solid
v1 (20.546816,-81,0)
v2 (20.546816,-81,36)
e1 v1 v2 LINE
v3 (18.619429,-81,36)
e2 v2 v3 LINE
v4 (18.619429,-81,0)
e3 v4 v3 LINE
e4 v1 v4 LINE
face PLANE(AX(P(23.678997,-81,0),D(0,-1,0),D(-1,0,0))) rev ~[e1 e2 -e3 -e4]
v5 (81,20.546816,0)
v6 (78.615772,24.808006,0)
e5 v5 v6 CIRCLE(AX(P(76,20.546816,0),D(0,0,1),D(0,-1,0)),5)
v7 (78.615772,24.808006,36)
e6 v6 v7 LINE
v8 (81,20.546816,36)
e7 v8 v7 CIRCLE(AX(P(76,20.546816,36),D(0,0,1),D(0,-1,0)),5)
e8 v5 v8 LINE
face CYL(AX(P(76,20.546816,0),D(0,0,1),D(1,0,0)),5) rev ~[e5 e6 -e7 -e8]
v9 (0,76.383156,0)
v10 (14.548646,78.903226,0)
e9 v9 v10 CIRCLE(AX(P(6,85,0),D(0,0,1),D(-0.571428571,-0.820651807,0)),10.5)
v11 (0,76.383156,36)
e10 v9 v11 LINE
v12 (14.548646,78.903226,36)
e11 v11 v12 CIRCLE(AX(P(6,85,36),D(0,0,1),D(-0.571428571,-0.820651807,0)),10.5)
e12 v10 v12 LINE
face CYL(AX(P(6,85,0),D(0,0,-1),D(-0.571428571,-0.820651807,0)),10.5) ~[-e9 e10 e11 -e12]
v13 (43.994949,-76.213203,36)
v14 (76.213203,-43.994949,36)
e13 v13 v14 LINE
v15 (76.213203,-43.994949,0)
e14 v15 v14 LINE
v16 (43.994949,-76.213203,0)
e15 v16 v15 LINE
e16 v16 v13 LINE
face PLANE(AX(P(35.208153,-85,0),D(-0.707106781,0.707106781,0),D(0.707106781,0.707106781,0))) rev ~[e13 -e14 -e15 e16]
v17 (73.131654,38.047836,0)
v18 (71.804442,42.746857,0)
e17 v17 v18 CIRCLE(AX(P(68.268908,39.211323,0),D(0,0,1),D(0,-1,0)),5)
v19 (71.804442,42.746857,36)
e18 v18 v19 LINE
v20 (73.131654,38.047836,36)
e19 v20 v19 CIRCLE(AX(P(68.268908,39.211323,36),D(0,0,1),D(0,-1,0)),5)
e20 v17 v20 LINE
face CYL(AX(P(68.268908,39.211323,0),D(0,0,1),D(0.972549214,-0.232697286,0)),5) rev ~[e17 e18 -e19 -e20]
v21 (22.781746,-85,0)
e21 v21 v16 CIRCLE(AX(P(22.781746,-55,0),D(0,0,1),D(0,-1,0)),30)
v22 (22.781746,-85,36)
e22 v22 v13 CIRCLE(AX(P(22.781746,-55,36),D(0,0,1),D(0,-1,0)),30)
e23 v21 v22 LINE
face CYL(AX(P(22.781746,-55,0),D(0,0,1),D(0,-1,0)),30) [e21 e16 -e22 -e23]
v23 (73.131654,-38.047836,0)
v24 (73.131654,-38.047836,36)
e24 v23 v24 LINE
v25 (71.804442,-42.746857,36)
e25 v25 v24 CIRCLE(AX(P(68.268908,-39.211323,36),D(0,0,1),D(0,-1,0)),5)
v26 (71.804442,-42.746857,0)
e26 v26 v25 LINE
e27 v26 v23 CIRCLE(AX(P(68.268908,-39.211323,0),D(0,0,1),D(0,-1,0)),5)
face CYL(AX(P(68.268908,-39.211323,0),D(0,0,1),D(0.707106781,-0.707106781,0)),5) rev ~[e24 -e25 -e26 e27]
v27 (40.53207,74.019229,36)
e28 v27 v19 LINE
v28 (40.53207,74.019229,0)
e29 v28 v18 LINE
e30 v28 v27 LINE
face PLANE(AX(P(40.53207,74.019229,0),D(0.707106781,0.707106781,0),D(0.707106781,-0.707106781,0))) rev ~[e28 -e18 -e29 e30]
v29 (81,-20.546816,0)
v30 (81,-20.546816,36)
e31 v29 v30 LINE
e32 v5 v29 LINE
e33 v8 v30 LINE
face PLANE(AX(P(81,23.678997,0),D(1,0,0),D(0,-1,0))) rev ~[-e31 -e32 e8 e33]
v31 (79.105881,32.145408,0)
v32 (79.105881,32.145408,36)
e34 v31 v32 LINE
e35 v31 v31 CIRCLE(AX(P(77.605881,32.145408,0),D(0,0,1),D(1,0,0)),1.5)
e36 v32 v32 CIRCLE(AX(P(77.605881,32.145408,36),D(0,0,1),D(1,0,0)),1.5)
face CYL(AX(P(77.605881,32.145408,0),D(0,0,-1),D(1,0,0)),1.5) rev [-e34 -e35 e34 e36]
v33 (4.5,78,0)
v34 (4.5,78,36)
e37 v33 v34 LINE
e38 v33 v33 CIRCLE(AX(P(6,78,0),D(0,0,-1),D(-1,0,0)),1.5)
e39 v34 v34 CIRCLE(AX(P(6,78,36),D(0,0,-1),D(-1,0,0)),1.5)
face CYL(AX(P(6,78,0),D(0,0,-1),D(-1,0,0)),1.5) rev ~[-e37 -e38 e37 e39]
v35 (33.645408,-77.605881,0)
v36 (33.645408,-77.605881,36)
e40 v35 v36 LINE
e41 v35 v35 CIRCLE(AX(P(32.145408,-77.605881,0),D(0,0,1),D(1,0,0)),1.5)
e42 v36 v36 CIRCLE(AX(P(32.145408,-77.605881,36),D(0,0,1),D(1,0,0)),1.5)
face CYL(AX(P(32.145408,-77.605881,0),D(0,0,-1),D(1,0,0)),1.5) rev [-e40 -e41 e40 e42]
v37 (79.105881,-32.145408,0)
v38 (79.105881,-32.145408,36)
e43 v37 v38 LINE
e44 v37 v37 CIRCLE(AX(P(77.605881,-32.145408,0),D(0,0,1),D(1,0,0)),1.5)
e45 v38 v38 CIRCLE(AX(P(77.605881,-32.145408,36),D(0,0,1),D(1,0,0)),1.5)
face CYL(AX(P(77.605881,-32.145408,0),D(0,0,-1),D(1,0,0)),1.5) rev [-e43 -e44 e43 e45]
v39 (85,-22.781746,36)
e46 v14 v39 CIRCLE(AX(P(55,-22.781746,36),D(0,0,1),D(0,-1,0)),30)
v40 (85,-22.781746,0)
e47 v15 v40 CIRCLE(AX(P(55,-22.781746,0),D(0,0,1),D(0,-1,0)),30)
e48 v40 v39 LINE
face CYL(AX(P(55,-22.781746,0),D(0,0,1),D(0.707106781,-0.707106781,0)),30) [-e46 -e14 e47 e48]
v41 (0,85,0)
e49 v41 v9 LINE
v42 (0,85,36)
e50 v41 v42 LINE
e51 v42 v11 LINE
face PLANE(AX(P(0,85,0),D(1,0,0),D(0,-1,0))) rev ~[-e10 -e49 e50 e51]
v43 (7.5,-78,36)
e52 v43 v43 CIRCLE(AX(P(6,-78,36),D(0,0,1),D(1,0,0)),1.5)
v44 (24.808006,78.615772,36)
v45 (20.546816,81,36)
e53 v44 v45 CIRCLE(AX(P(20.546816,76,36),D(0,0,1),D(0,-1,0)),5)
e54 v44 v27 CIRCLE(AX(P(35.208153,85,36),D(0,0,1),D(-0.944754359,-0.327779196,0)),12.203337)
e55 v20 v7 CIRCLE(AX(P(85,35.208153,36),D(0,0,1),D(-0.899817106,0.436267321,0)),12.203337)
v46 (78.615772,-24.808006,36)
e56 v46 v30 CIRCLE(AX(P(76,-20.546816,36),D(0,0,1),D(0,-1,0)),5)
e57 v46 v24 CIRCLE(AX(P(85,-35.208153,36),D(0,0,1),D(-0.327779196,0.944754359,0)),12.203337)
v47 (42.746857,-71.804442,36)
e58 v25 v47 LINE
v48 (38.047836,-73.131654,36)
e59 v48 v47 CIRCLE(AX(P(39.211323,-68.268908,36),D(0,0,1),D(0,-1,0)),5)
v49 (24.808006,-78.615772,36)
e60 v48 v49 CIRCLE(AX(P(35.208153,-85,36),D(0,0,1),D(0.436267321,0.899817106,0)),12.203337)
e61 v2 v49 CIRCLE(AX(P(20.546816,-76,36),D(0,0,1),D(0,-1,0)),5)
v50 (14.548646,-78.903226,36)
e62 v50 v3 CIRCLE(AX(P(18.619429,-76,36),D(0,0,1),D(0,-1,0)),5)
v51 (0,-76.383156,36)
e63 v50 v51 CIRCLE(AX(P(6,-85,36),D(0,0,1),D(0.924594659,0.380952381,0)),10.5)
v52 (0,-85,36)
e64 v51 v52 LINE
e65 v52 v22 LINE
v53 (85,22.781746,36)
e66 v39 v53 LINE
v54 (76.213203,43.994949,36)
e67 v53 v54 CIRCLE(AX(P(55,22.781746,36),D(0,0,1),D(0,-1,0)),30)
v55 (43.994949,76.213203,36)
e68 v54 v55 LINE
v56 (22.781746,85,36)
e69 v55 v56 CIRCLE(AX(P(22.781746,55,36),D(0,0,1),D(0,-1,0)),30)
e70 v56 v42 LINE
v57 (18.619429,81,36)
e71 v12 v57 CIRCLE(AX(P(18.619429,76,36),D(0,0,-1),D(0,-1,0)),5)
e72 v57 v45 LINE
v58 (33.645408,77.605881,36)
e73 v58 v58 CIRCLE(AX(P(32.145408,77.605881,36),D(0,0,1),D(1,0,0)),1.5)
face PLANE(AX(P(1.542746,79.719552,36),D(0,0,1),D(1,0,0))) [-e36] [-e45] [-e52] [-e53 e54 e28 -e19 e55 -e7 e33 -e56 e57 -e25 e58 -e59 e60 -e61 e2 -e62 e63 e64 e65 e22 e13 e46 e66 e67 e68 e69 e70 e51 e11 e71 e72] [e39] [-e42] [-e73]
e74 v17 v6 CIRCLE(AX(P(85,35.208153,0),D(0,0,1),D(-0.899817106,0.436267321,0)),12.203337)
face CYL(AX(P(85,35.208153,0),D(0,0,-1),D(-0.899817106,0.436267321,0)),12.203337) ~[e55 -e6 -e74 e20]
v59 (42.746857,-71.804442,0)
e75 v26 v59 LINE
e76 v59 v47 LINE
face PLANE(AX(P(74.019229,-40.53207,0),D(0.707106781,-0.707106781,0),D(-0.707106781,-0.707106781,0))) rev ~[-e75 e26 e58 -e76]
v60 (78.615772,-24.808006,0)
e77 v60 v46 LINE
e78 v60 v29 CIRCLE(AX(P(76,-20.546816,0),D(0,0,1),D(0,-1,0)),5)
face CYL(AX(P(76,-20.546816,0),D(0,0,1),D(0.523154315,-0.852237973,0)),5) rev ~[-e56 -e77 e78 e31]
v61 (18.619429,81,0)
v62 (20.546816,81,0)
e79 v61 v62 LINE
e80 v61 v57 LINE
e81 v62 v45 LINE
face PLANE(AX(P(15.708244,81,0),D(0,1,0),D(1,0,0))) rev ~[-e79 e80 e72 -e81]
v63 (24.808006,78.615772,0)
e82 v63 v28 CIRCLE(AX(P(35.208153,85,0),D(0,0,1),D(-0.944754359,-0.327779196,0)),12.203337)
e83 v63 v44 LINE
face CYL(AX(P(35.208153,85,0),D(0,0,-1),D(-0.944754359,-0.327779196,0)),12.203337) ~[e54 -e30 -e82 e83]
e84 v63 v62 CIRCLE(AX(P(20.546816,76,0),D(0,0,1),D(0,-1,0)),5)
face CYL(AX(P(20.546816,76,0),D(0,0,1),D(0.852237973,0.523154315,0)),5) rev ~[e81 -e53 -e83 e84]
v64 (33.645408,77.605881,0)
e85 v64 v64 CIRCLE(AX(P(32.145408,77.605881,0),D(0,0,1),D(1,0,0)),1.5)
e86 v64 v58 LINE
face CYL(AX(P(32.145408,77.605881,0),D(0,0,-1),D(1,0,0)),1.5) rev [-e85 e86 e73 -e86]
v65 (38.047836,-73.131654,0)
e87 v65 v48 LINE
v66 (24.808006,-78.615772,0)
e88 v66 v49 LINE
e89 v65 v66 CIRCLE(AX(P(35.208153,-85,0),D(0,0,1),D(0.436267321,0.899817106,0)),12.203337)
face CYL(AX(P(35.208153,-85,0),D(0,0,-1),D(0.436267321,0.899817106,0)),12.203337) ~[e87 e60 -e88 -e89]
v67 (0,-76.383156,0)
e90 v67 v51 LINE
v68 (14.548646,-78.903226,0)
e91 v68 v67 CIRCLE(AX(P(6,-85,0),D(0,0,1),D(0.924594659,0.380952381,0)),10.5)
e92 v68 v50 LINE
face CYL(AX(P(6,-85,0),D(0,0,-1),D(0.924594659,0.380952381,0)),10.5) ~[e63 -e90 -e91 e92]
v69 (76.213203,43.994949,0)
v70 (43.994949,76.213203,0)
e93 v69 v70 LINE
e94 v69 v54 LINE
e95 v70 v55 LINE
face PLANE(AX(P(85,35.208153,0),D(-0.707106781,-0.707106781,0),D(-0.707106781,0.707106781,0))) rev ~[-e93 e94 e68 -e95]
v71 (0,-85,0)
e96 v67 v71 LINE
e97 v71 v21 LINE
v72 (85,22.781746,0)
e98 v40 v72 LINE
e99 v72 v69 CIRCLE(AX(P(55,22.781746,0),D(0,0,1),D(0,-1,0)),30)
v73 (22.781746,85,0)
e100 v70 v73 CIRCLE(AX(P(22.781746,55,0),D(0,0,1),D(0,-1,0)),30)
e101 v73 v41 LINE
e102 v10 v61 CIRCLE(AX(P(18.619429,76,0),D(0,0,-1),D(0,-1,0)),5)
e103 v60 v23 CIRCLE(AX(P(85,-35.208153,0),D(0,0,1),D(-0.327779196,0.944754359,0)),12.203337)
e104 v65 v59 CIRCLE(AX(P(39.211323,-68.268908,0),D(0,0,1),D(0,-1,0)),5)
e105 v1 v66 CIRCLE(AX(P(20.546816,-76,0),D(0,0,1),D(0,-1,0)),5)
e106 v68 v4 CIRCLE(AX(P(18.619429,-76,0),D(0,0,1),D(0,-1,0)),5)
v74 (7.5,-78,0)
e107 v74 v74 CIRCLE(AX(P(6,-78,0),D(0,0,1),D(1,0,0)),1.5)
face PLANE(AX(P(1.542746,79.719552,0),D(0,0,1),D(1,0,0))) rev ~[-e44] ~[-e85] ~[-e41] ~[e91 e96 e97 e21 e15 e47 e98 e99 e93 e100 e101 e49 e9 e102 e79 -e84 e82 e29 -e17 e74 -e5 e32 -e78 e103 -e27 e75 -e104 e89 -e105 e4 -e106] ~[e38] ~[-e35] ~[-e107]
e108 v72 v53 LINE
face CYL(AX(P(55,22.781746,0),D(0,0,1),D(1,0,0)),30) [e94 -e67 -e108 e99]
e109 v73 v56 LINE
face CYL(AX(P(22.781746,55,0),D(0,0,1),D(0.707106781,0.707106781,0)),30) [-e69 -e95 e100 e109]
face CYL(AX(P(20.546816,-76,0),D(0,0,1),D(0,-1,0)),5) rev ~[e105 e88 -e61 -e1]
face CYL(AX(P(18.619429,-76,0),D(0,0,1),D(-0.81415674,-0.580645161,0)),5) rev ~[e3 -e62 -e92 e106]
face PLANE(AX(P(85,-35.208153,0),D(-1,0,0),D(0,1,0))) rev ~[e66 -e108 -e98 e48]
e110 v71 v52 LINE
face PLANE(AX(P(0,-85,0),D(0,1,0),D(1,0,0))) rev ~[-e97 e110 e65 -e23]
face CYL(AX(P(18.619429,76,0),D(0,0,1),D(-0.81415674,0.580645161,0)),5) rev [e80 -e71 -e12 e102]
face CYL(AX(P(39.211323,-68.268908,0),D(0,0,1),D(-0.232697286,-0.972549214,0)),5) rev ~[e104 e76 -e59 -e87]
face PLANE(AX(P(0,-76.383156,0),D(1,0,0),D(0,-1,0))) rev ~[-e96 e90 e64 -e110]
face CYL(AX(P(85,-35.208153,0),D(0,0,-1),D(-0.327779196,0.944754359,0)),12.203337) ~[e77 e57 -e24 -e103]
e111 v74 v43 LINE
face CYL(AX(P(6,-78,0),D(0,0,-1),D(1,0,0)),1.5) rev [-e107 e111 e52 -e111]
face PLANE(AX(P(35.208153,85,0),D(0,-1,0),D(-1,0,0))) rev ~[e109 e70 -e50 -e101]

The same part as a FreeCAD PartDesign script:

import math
import FreeCAD as App
import Part
import Sketcher

V = App.Vector
Q = App.Units.Quantity


def edges_at(feature, points):
    """Names of the edges that pass closest to the given points."""
    edges = feature.Shape.Edges
    near = lambda p: min(range(len(edges)), key=lambda i: edges[i].distToShape(Part.Vertex(*p))[0])
    return sorted({f"Edge{near(p) + 1}" for p in points})

doc = App.newDocument("Part")
body = doc.addObject("PartDesign::Body", "Body")

sketch1 = body.newObject("Sketcher::SketchObject", "Sketch")
sketch1.AttachmentSupport = (doc.getObject("XY_Plane"), [""])
sketch1.MapMode = "FlatFace"
sketch1.addGeometry([
    Part.ArcOfCircle(Part.Circle(V(6, 85, 0), V(0, 0, 1), 10.5), math.radians(-125), math.radians(-22)),
    Part.LineSegment(V(15.7, 81, 0), V(23.7, 81, 0)),
    Part.ArcOfCircle(Part.Circle(V(35.2, 85, 0), V(0, 0, 1), 12.2), math.radians(-161), math.radians(-64)),
    Part.LineSegment(V(40.5, 74, 0), V(74, 40.5, 0)),
    Part.ArcOfCircle(Part.Circle(V(85, 35.2, 0), V(0, 0, 1), 12.2), math.radians(154), math.radians(251)),
    Part.LineSegment(V(81, 23.7, 0), V(81, -23.7, 0)),
    Part.ArcOfCircle(Part.Circle(V(85, -35.2, 0), V(0, 0, 1), 12.2), math.radians(109), math.radians(206)),
    Part.LineSegment(V(74, -40.5, 0), V(40.5, -74, 0)),
    Part.ArcOfCircle(Part.Circle(V(35.2, -85, 0), V(0, 0, 1), 12.2), math.radians(64), math.radians(161)),
    Part.LineSegment(V(23.7, -81, 0), V(15.7, -81, 0)),
    Part.ArcOfCircle(Part.Circle(V(6, -85, 0), V(0, 0, 1), 10.5), math.radians(22), math.radians(125)),
    Part.LineSegment(V(0, -76.4, 0), V(0, -85, 0)),
    Part.LineSegment(V(0, -85, 0), V(35.2, -85, 0)),
    Part.LineSegment(V(35.2, -85, 0), V(85, -35.2, 0)),
    Part.LineSegment(V(85, -35.2, 0), V(85, 35.2, 0)),
    Part.LineSegment(V(85, 35.2, 0), V(35.2, 85, 0)),
    Part.LineSegment(V(35.2, 85, 0), V(0, 85, 0)),
    Part.LineSegment(V(0, 85, 0), V(0, 76.4, 0)),
    Part.Circle(V(6, -78, 0), V(0, 0, 1), 1.5),
    Part.Circle(V(32.1, -77.6, 0), V(0, 0, 1), 1.5),
    Part.Circle(V(77.6, -32.1, 0), V(0, 0, 1), 1.5),
    Part.Circle(V(6, 78, 0), V(0, 0, 1), 1.5),
    Part.Circle(V(32.1, 77.6, 0), V(0, 0, 1), 1.5),
    Part.Circle(V(77.6, 32.1, 0), V(0, 0, 1), 1.5),
], False)
sketch1.addConstraint([
    Sketcher.Constraint("Coincident", 0, 2, 1, 1),
    Sketcher.Constraint("Coincident", 1, 2, 2, 1),
    Sketcher.Constraint("Coincident", 2, 2, 3, 1),
    Sketcher.Constraint("Coincident", 3, 2, 4, 1),
    Sketcher.Constraint("Coincident", 4, 2, 5, 1),
    Sketcher.Constraint("Coincident", 5, 2, 6, 1),
    Sketcher.Constraint("Coincident", 6, 2, 7, 1),
    Sketcher.Constraint("Coincident", 7, 2, 8, 1),
    Sketcher.Constraint("Coincident", 8, 2, 9, 1),
    Sketcher.Constraint("Coincident", 9, 2, 10, 1),
    Sketcher.Constraint("Coincident", 10, 2, 11, 1),
    Sketcher.Constraint("Coincident", 11, 2, 12, 1),
    Sketcher.Constraint("Coincident", 12, 2, 13, 1),
    Sketcher.Constraint("Coincident", 13, 2, 14, 1),
    Sketcher.Constraint("Coincident", 14, 2, 15, 1),
    Sketcher.Constraint("Coincident", 15, 2, 16, 1),
    Sketcher.Constraint("Coincident", 16, 2, 17, 1),
    Sketcher.Constraint("Coincident", 17, 2, 0, 1),
    Sketcher.Constraint("Horizontal", 1),
    Sketcher.Constraint("Vertical", 5),
    Sketcher.Constraint("Horizontal", 9),
    Sketcher.Constraint("Vertical", 11),
    Sketcher.Constraint("Horizontal", 12),
    Sketcher.Constraint("Vertical", 14),
    Sketcher.Constraint("Horizontal", 16),
    Sketcher.Constraint("Vertical", 17),
    Sketcher.Constraint("Coincident", 12, 2, 8, 3),
    Sketcher.Constraint("Coincident", 13, 2, 6, 3),
    Sketcher.Constraint("Coincident", 14, 2, 4, 3),
    Sketcher.Constraint("Coincident", 15, 2, 2, 3),
    Sketcher.Constraint("Equal", 2, 4),
    Sketcher.Constraint("Equal", 4, 6),
    Sketcher.Constraint("Equal", 6, 8),
    Sketcher.Constraint("Equal", 0, 10),
    Sketcher.Constraint("Equal", 18, 19),
    Sketcher.Constraint("Equal", 19, 20),
    Sketcher.Constraint("Equal", 20, 21),
    Sketcher.Constraint("Equal", 21, 22),
    Sketcher.Constraint("Equal", 22, 23),
    Sketcher.Constraint("Symmetric", 11, 2, 16, 2, -1, 1),
    Sketcher.Constraint("Symmetric", 0, 3, 10, 3, -1),
    Sketcher.Constraint("Symmetric", 18, 3, 21, 3, -1),
    Sketcher.Constraint("Symmetric", 19, 3, 22, 3, -1),
    Sketcher.Constraint("Symmetric", 20, 3, 23, 3, -1),
    Sketcher.Constraint("Symmetric", 3, 2, 6, 2, -1),
    Sketcher.Constraint("Symmetric", 2, 2, 7, 2, -1),
    Sketcher.Constraint("PointOnObject", 10, 2, -2),
    Sketcher.Constraint("Perpendicular", 3, 7),
    Sketcher.Constraint("Parallel", 7, 13),
    Sketcher.Constraint("Horizontal", 0, 3, 2, 3),
    Sketcher.Constraint("Vertical", 10, 3, 18, 3),
    Sketcher.Constraint("Vertical", 1, 2, 8, 2),
    Sketcher.Constraint("Diameter", 18, Q("3 mm")),
    Sketcher.Constraint("Radius", 0, Q("10.5 mm")),
    Sketcher.Constraint("DistanceX", -1, 1, 0, 3, Q("6 mm")),
    Sketcher.Constraint("DistanceY", -1, 1, 0, 3, Q("85 mm")),
    Sketcher.Constraint("DistanceX", -1, 1, 4, 3, Q("85 mm")),
    Sketcher.Constraint("DistanceY", 18, 3, -1, 1, Q("78 mm")),
    Sketcher.Constraint("DistanceY", -1, 1, 0, 2, Q("81 mm")),
    Sketcher.Constraint("DistanceX", -1, 1, 4, 2, Q("81 mm")),
    Sketcher.Constraint("Radius", 2, Q("12.203337 mm")),
    Sketcher.Constraint("DistanceX", 1, 1, 1, 2, Q("7.970753 mm")),
    Sketcher.Constraint("DistanceX", -1, 1, 19, 3, Q("32.145408 mm")),
    Sketcher.Constraint("DistanceY", 19, 3, -1, 1, Q("77.605881 mm")),
    Sketcher.Constraint("DistanceX", -1, 1, 20, 3, Q("77.605881 mm")),
    Sketcher.Constraint("DistanceY", 20, 3, -1, 1, Q("32.145408 mm")),
    Sketcher.Constraint("DistanceX", -1, 1, 2, 2, Q("40.53207 mm")),
])
pad1 = body.newObject("PartDesign::Pad", "Pad")
pad1.Profile = sketch1
pad1.Length = 36
doc.recompute()

fillet = body.newObject("PartDesign::Fillet", "Fillet")
fillet.Base = (pad1, edges_at(pad1, [
    (85, -35.208, 18),
    (85, 35.208, 18),
    (35.208, 85, 18),
    (35.208, -85, 18),
]))
fillet.Radius = 30
doc.recompute()

fillet2 = body.newObject("PartDesign::Fillet", "Fillet001")
fillet2.Base = (fillet, edges_at(fillet, [
    (23.679, 81, 18),
    (15.708, 81, 18),
    (74.019, 40.532, 18),
    (81, 23.679, 18),
    (81, -23.679, 18),
    (74.019, -40.532, 18),
    (40.532, -74.019, 18),
    (15.708, -81, 18),
    (23.679, -81, 18),
]))
fillet2.Radius = 5

doc.recompute()
